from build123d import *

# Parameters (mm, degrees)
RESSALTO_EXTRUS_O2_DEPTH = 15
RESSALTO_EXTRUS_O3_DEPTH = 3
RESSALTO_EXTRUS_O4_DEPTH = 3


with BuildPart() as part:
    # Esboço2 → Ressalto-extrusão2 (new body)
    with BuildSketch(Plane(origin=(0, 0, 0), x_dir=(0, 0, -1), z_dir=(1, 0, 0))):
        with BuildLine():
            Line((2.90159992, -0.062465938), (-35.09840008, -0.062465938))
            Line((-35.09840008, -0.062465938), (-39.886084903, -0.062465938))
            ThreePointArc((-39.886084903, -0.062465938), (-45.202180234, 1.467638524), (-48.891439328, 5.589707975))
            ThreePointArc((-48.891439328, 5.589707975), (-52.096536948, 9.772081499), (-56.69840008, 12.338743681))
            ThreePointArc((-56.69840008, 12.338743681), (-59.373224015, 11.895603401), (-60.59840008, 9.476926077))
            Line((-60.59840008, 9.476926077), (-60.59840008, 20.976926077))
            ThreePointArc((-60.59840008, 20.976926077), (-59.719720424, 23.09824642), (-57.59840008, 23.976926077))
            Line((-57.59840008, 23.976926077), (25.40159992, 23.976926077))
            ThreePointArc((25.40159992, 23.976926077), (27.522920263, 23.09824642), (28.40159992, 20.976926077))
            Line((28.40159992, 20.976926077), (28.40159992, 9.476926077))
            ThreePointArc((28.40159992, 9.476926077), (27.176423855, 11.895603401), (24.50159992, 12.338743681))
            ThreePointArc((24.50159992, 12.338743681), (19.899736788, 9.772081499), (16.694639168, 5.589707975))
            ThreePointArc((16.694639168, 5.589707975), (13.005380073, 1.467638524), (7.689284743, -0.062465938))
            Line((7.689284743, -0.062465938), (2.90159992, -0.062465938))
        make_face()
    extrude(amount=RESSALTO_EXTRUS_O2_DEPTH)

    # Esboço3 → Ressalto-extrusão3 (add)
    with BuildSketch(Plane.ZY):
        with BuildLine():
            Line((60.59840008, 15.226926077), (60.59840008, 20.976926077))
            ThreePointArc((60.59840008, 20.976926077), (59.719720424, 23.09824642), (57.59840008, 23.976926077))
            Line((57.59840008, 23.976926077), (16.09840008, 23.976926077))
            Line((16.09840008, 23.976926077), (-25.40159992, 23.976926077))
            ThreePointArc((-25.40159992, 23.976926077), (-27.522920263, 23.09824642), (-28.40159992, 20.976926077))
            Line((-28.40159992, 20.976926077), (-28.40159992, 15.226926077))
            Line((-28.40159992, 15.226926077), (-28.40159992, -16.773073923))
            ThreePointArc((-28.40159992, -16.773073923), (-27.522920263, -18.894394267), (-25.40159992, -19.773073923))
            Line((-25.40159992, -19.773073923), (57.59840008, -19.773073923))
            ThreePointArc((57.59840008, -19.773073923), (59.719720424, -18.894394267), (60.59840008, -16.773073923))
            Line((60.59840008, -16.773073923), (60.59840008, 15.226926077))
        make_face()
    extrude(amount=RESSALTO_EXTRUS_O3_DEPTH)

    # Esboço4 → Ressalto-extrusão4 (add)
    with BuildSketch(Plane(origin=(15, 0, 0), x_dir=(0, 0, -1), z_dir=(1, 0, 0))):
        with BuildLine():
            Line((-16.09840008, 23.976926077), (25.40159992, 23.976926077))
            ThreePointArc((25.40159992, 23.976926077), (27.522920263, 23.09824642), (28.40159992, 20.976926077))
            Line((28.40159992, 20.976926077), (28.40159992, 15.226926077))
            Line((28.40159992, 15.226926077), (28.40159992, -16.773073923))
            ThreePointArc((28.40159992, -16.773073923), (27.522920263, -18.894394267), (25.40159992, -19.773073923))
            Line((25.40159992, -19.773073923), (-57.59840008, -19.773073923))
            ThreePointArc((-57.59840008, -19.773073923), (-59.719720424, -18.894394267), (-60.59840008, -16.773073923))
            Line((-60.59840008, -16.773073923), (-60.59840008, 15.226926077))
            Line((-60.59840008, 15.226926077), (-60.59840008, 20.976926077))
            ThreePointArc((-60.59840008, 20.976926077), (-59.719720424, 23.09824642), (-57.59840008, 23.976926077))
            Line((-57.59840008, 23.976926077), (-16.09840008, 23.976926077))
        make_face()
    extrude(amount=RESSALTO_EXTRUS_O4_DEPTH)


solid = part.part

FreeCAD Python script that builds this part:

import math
import FreeCAD as App
import Part
import Sketcher
Q = App.Units.Quantity

doc = App.newDocument("Part")
body = doc.addObject("PartDesign::Body", "Body")

# Sketch on YZ plane
sketch1 = body.newObject("Sketcher::SketchObject", "Sketch")
sketch1.AttachmentSupport = (doc.getObject("YZ_Plane"), [""])
sketch1.MapMode = "FlatFace"
sketch1.addGeometry([
    Part.ArcOfCircle(Part.Circle(App.Vector(9.9, 39.9, 0), App.Vector(0, 0, 1), 10), math.radians(116), math.radians(180)),  # 0
    Part.LineSegment(App.Vector(-0.1, 39.9, 0), App.Vector(-0.1, -7.7, 0)),  # 1
    Part.ArcOfCircle(Part.Circle(App.Vector(9.9, -7.7, 0), App.Vector(0, 0, 1), 10), math.radians(-180), math.radians(-116)),  # 2
    Part.ArcOfCircle(Part.Circle(App.Vector(-0.1, -28.4, 0), App.Vector(0, 0, 1), 13), math.radians(17), math.radians(64)),  # 3
    Part.ArcOfCircle(Part.Circle(App.Vector(9.5, -25.4, 0), App.Vector(0, 0, 1), 3), math.radians(-90), math.radians(17)),  # 4
    Part.LineSegment(App.Vector(9.5, -28.4, 0), App.Vector(21, -28.4, 0)),  # 5
    Part.ArcOfCircle(Part.Circle(App.Vector(21, -25.4, 0), App.Vector(0, 0, 1), 3), math.radians(-90), math.radians(0)),  # 6
    Part.LineSegment(App.Vector(24, -25.4, 0), App.Vector(24, 57.6, 0)),  # 7
    Part.ArcOfCircle(Part.Circle(App.Vector(21, 57.6, 0), App.Vector(0, 0, 1), 3), math.radians(0), math.radians(90)),  # 8
    Part.LineSegment(App.Vector(21, 60.6, 0), App.Vector(9.5, 60.6, 0)),  # 9
    Part.ArcOfCircle(Part.Circle(App.Vector(9.5, 57.6, 0), App.Vector(0, 0, 1), 3), math.radians(-17), math.radians(90)),  # 10
    Part.ArcOfCircle(Part.Circle(App.Vector(-0.1, 60.6, 0), App.Vector(0, 0, 1), 13), math.radians(-64), math.radians(-17)),  # 11
], False)
sketch1.addConstraint([
    Sketcher.Constraint("Tangent", 0, 2, 1, 1),
    Sketcher.Constraint("Tangent", 1, 2, 2, 1),
    Sketcher.Constraint("Tangent", 2, 2, 3, 2),
    Sketcher.Constraint("Tangent", 3, 1, 4, 2),
    Sketcher.Constraint("Tangent", 4, 1, 5, 1),
    Sketcher.Constraint("Tangent", 5, 2, 6, 1),
    Sketcher.Constraint("Tangent", 6, 2, 7, 1),
    Sketcher.Constraint("Tangent", 7, 2, 8, 1),
    Sketcher.Constraint("Tangent", 8, 2, 9, 1),
    Sketcher.Constraint("Tangent", 9, 2, 10, 2),
    Sketcher.Constraint("Tangent", 10, 1, 11, 2),
    Sketcher.Constraint("Tangent", 11, 1, 0, 1),
    Sketcher.Constraint("Vertical", 1),
    Sketcher.Constraint("Horizontal", 5),
    Sketcher.Constraint("Vertical", 7),
    Sketcher.Constraint("Horizontal", 9),
    Sketcher.Constraint("Equal", 0, 2),
    Sketcher.Constraint("Equal", 4, 6),
    Sketcher.Constraint("Equal", 6, 8),
    Sketcher.Constraint("Equal", 8, 10),
    Sketcher.Constraint("Equal", 3, 11),
    Sketcher.Constraint("Horizontal", 3, 3, 4, 1),
    Sketcher.Constraint("Horizontal", 11, 3, 8, 2),
    Sketcher.Constraint("Vertical", 4, 3, 10, 3),
    Sketcher.Constraint("Vertical", 11, 3, 0, 2),
    Sketcher.Constraint("Radius", 0, Q("10 mm")),
    Sketcher.Constraint("Radius", 3, Q("13 mm")),
    Sketcher.Constraint("Radius", 4, Q("3 mm")),
    Sketcher.Constraint("DistanceY", 7, 1, 7, 2, Q("83 mm")),
    Sketcher.Constraint("DistanceX", 5, 1, 5, 2, Q("11.5 mm")),
    Sketcher.Constraint("DistanceY", 3, 3, -1, 1, Q("28.4016 mm")),
    Sketcher.Constraint("DistanceX", -1, 1, 0, 3, Q("9.937534 mm")),
])
pad1 = body.newObject("PartDesign::Pad", "Pad")
pad1.Profile = sketch1
pad1.Length = 15

# Sketch on YZ plane
sketch2 = body.newObject("Sketcher::SketchObject", "Sketch001")
sketch2.AttachmentSupport = (doc.getObject("YZ_Plane"), [""])
sketch2.MapMode = "FlatFace"
sketch2.addGeometry([
    Part.ArcOfCircle(Part.Circle(App.Vector(21, 57.6, 0), App.Vector(0, 0, 1), 3), math.radians(0), math.radians(90)),  # 0
    Part.LineSegment(App.Vector(24, 57.6, 0), App.Vector(24, -25.4, 0)),  # 1
    Part.ArcOfCircle(Part.Circle(App.Vector(21, -25.4, 0), App.Vector(0, 0, 1), 3), math.radians(-90), math.radians(0)),  # 2
    Part.LineSegment(App.Vector(21, -28.4, 0), App.Vector(-16.8, -28.4, 0)),  # 3
    Part.ArcOfCircle(Part.Circle(App.Vector(-16.8, -25.4, 0), App.Vector(0, 0, 1), 3), math.radians(180), math.radians(270)),  # 4
    Part.LineSegment(App.Vector(-19.8, -25.4, 0), App.Vector(-19.8, 57.6, 0)),  # 5
    Part.ArcOfCircle(Part.Circle(App.Vector(-16.8, 57.6, 0), App.Vector(0, 0, 1), 3), math.radians(90), math.radians(180)),  # 6
    Part.LineSegment(App.Vector(-16.8, 60.6, 0), App.Vector(21, 60.6, 0)),  # 7
], False)
sketch2.addConstraint([
    Sketcher.Constraint("Tangent", 0, 1, 1, 1),
    Sketcher.Constraint("Tangent", 1, 2, 2, 2),
    Sketcher.Constraint("Tangent", 2, 1, 3, 1),
    Sketcher.Constraint("Tangent", 3, 2, 4, 2),
    Sketcher.Constraint("Tangent", 4, 1, 5, 1),
    Sketcher.Constraint("Tangent", 5, 2, 6, 2),
    Sketcher.Constraint("Tangent", 6, 1, 7, 1),
    Sketcher.Constraint("Tangent", 7, 2, 0, 2),
    Sketcher.Constraint("Vertical", 1),
    Sketcher.Constraint("Horizontal", 3),
    Sketcher.Constraint("Vertical", 5),
    Sketcher.Constraint("Horizontal", 7),
    Sketcher.Constraint("Equal", 0, 2),
    Sketcher.Constraint("Equal", 2, 4),
    Sketcher.Constraint("Equal", 4, 6),
    Sketcher.Constraint("Radius", 0, Q("3 mm")),
    Sketcher.Constraint("DistanceY", 1, 2, 1, 1, Q("83 mm")),
    Sketcher.Constraint("DistanceX", 3, 2, 3, 1, Q("37.75 mm")),
    Sketcher.Constraint("DistanceY", -1, 1, 0, 3, Q("57.5984 mm")),
    Sketcher.Constraint("DistanceX", -1, 1, 0, 3, Q("20.976926 mm")),
])
pad2 = body.newObject("PartDesign::Pad", "Pad001")
pad2.Profile = sketch2
pad2.Length = 3
pad2.Reversed = True

# Sketch on YZ plane
sketch3 = body.newObject("Sketcher::SketchObject", "Sketch002")
sketch3.AttachmentSupport = (doc.getObject("YZ_Plane"), [""])
sketch3.MapMode = "FlatFace"
sketch3.AttachmentOffset = App.Placement(App.Vector(0, 0, 15), App.Rotation())
sketch3.addGeometry([
    Part.ArcOfCircle(Part.Circle(App.Vector(21, -25.4, 0), App.Vector(0, 0, 1), 3), math.radians(-90), math.radians(0)),  # 0
    Part.LineSegment(App.Vector(24, -25.4, 0), App.Vector(24, 57.6, 0)),  # 1
    Part.ArcOfCircle(Part.Circle(App.Vector(21, 57.6, 0), App.Vector(0, 0, 1), 3), math.radians(0), math.radians(90)),  # 2
    Part.LineSegment(App.Vector(21, 60.6, 0), App.Vector(-16.8, 60.6, 0)),  # 3
    Part.ArcOfCircle(Part.Circle(App.Vector(-16.8, 57.6, 0), App.Vector(0, 0, 1), 3), math.radians(90), math.radians(180)),  # 4
    Part.LineSegment(App.Vector(-19.8, 57.6, 0), App.Vector(-19.8, -25.4, 0)),  # 5
    Part.ArcOfCircle(Part.Circle(App.Vector(-16.8, -25.4, 0), App.Vector(0, 0, 1), 3), math.radians(180), math.radians(270)),  # 6
    Part.LineSegment(App.Vector(-16.8, -28.4, 0), App.Vector(21, -28.4, 0)),  # 7
], False)
sketch3.addConstraint([
    Sketcher.Constraint("Tangent", 0, 2, 1, 1),
    Sketcher.Constraint("Tangent", 1, 2, 2, 1),
    Sketcher.Constraint("Tangent", 2, 2, 3, 1),
    Sketcher.Constraint("Tangent", 3, 2, 4, 1),
    Sketcher.Constraint("Tangent", 4, 2, 5, 1),
    Sketcher.Constraint("Tangent", 5, 2, 6, 1),
    Sketcher.Constraint("Tangent", 6, 2, 7, 1),
    Sketcher.Constraint("Tangent", 7, 2, 0, 1),
    Sketcher.Constraint("Vertical", 1),
    Sketcher.Constraint("Horizontal", 3),
    Sketcher.Constraint("Vertical", 5),
    Sketcher.Constraint("Horizontal", 7),
    Sketcher.Constraint("Equal", 0, 2),
    Sketcher.Constraint("Equal", 2, 4),
    Sketcher.Constraint("Equal", 4, 6),
    Sketcher.Constraint("Radius", 0, Q("3 mm")),
    Sketcher.Constraint("DistanceY", 1, 1, 1, 2, Q("83 mm")),
    Sketcher.Constraint("DistanceX", 3, 2, 3, 1, Q("37.75 mm")),
    Sketcher.Constraint("DistanceY", 0, 3, -1, 1, Q("25.4016 mm")),
    Sketcher.Constraint("DistanceX", -1, 1, 0, 3, Q("20.976926 mm")),
])
pad3 = body.newObject("PartDesign::Pad", "Pad002")
pad3.Profile = sketch3
pad3.Length = 3

doc.recompute()
